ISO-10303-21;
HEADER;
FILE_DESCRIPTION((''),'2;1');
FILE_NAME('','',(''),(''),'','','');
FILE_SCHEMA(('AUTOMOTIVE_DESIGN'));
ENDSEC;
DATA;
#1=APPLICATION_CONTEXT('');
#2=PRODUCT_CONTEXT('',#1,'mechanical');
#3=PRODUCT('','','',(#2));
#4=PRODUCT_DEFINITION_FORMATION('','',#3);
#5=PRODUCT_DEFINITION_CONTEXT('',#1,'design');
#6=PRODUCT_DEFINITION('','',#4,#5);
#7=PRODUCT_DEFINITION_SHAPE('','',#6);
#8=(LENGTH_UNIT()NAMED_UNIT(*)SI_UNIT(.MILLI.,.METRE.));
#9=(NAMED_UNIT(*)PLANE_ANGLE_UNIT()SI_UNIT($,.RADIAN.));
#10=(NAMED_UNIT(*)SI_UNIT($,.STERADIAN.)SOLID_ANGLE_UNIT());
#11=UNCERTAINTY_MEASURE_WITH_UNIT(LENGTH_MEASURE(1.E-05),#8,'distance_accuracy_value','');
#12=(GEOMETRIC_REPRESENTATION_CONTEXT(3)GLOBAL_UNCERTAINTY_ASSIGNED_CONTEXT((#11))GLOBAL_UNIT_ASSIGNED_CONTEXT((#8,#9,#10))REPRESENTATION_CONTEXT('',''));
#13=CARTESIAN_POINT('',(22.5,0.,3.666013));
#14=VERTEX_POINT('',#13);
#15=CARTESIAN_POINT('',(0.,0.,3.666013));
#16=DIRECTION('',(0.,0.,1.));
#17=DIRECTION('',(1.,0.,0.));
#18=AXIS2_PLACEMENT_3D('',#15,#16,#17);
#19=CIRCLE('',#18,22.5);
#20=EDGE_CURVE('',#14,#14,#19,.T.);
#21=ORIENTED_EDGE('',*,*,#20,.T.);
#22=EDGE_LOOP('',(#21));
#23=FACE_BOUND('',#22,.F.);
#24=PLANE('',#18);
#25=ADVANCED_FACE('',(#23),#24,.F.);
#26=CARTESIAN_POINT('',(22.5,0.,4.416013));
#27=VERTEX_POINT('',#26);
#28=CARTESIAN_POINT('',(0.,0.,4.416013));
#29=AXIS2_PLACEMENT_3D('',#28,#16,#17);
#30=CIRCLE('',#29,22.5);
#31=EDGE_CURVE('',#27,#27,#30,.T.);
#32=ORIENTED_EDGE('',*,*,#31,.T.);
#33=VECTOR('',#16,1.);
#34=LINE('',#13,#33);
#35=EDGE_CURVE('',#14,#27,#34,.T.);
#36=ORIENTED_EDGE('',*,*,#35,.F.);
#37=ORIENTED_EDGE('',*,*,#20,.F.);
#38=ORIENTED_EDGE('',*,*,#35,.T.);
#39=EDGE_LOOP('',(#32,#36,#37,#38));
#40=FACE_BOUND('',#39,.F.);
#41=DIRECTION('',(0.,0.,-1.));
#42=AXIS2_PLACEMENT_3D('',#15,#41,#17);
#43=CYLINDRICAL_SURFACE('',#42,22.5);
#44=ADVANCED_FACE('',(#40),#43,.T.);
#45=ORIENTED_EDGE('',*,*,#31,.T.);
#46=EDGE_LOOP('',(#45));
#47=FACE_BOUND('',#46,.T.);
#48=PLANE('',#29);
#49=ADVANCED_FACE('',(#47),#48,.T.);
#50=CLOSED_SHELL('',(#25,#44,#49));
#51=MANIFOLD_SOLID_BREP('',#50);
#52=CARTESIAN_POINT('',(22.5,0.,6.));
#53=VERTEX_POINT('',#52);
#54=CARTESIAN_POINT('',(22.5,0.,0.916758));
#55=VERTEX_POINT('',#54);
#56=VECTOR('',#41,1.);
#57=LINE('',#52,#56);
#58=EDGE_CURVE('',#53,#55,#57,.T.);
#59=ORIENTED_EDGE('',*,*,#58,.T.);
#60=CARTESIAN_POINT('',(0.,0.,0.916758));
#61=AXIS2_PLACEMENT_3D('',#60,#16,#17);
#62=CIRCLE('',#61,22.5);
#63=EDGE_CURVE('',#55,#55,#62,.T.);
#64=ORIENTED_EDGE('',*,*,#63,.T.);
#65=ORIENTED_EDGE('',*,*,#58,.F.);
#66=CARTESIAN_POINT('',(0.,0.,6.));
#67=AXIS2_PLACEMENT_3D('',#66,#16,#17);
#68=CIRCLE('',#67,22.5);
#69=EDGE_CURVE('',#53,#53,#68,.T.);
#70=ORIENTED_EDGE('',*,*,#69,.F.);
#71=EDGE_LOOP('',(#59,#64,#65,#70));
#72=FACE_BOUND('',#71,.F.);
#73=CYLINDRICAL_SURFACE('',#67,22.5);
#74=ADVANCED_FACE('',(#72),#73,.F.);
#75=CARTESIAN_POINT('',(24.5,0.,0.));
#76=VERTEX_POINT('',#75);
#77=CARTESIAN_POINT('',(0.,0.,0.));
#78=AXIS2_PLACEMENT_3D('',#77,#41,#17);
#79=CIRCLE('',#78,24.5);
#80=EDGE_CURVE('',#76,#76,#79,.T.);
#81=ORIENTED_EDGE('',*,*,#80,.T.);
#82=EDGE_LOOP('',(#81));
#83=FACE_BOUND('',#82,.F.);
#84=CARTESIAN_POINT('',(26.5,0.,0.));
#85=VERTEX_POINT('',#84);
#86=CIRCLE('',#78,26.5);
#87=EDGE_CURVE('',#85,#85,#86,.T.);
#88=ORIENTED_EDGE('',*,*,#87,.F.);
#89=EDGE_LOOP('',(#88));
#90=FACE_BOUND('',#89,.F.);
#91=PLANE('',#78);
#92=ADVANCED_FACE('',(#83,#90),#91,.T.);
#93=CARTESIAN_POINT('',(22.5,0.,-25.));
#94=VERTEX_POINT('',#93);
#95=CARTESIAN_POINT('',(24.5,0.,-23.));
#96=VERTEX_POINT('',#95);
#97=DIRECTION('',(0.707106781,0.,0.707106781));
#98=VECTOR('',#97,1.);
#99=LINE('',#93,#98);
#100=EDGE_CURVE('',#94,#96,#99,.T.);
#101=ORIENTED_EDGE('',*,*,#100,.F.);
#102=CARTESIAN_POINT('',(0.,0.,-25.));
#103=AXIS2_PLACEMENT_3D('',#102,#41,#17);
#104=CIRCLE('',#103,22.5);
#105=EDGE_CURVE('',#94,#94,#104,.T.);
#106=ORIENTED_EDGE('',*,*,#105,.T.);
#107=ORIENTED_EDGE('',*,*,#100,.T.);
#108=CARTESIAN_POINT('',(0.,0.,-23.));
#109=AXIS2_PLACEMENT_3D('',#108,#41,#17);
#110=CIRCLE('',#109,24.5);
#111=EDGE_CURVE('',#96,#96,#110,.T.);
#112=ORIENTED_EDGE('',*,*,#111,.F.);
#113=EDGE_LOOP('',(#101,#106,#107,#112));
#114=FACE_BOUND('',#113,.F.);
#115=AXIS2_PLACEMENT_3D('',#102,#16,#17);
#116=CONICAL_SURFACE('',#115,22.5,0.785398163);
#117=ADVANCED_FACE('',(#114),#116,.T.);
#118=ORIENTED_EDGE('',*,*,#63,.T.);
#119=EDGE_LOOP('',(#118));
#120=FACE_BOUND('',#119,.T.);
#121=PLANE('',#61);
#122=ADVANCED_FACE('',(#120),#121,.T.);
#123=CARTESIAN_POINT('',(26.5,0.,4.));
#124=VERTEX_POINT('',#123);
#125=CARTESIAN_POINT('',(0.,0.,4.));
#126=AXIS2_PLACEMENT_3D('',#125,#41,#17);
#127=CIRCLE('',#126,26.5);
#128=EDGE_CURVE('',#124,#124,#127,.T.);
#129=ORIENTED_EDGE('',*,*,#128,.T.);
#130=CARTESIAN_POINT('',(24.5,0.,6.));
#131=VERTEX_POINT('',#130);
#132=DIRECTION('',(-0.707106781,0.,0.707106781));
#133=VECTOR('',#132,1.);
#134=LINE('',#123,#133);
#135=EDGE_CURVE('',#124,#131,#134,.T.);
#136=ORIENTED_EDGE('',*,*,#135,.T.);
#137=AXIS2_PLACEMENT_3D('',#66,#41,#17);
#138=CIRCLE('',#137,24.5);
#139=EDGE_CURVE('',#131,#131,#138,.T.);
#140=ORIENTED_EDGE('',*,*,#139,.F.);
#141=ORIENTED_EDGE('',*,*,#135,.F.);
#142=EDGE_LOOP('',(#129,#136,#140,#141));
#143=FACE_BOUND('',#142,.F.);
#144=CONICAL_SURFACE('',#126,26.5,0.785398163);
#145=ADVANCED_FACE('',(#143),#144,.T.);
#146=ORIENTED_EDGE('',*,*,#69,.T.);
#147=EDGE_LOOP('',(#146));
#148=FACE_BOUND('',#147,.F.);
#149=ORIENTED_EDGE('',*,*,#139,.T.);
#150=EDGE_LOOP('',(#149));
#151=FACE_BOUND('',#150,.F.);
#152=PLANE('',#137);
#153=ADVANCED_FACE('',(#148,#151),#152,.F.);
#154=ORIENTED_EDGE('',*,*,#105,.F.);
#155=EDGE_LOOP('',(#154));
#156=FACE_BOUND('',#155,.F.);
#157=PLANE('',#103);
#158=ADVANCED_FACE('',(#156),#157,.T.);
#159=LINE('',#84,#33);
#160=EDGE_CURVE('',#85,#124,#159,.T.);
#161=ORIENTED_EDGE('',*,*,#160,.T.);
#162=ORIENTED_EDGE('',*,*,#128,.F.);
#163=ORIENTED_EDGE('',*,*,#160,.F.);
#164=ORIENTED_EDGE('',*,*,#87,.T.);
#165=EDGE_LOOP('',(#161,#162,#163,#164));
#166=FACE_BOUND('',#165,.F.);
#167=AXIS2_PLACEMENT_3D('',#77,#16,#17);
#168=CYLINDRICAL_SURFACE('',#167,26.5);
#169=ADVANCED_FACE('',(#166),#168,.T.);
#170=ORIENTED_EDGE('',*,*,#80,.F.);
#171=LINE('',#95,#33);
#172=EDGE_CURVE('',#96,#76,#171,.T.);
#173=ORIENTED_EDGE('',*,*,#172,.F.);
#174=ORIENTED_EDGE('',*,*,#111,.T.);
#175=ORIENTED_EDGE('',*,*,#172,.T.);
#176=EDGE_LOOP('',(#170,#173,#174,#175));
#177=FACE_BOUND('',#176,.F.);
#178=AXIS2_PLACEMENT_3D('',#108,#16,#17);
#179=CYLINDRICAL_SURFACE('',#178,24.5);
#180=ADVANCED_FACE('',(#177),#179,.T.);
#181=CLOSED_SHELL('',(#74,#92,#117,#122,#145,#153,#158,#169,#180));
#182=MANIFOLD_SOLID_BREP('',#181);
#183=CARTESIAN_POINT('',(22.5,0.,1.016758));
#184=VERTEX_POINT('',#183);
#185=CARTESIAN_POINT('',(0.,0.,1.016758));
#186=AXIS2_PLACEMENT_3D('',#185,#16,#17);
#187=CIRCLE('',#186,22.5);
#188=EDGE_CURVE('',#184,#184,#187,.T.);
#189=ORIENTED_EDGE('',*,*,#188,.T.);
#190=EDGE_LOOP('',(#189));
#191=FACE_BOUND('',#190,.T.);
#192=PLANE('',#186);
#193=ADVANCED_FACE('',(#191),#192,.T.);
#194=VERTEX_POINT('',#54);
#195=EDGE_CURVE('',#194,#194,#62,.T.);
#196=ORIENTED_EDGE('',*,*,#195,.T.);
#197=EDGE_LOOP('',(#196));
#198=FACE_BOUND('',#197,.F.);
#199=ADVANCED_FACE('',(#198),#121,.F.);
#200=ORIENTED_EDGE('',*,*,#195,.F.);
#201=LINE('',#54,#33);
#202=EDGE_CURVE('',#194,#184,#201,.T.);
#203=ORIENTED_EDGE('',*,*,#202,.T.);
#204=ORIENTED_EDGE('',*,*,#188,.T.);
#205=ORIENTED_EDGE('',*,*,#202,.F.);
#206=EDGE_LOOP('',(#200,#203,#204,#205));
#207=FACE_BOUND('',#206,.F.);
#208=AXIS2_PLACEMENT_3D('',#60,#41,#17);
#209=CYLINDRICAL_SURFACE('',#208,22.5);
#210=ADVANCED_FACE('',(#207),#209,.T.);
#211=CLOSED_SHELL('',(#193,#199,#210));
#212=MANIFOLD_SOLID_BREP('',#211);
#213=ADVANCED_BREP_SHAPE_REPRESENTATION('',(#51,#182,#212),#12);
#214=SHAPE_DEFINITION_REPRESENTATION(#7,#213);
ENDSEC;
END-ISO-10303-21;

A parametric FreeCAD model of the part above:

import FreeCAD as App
import Part
import Sketcher

V = App.Vector

doc = App.newDocument("Part")
params = doc.addObject("Spreadsheet::Sheet", "Params")
for row, (alias, value) in enumerate([
    ("sketch1_width", "2 mm"),
    ("sketch1_height", "31 mm"),
    ("sketch1_height2", "23 mm"),
    ("sketch1_height3", "4 mm"),
    ("sketch1_width2", "22.5 mm"),
    ("revolution_angle", "360 deg"),
    ("sketch2_diameter", "45 mm"),
    ("pocket1_length", "5.083242 mm"),
    ("sketch3_diameter", "45 mm"),
    ("pad1_length", "0.1 mm"),
    ("sketch4_diameter", "45 mm"),
    ("pad2_length", "0.75 mm"),
], start=1):
    params.set(f"A{row}", alias)
    params.set(f"B{row}", "=" + value)
    params.setAlias(f"B{row}", alias)

body = doc.addObject("PartDesign::Body", "Body")

# Sketch on XZ plane
sketch1 = body.newObject("Sketcher::SketchObject", "Sketch")
sketch1.AttachmentSupport = (doc.getObject("XZ_Plane"), [""])
sketch1.MapMode = "FlatFace"
sketch1.addGeometry([
    Part.LineSegment(V(0, 6, 0), V(0, -25, 0)),  # 0
    Part.LineSegment(V(0, -25, 0), V(22.5, -25, 0)),  # 1
    Part.LineSegment(V(22.5, -25, 0), V(24.5, -23, 0)),  # 2
    Part.LineSegment(V(24.5, -23, 0), V(24.5, 0, 0)),  # 3
    Part.LineSegment(V(24.5, 0, 0), V(26.5, 0, 0)),  # 4
    Part.LineSegment(V(26.5, 0, 0), V(26.5, 4, 0)),  # 5
    Part.LineSegment(V(26.5, 4, 0), V(24.5, 6, 0)),  # 6
    Part.LineSegment(V(24.5, 6, 0), V(0, 6, 0)),  # 7
], False)
sketch1.addConstraint([
    Sketcher.Constraint("Coincident", 0, 2, 1, 1),
    Sketcher.Constraint("Coincident", 1, 2, 2, 1),
    Sketcher.Constraint("Coincident", 2, 2, 3, 1),
    Sketcher.Constraint("Coincident", 3, 2, 4, 1),
    Sketcher.Constraint("Coincident", 4, 2, 5, 1),
    Sketcher.Constraint("Coincident", 5, 2, 6, 1),
    Sketcher.Constraint("Coincident", 6, 2, 7, 1),
    Sketcher.Constraint("Coincident", 7, 2, 0, 1),
    Sketcher.Constraint("Vertical", 0),
    Sketcher.Constraint("Horizontal", 1),
    Sketcher.Constraint("Vertical", 3),
    Sketcher.Constraint("Horizontal", 4),
    Sketcher.Constraint("Vertical", 5),
    Sketcher.Constraint("Horizontal", 7),
    Sketcher.Constraint("PointOnObject", 0, 2, -2),
    Sketcher.Constraint("PointOnObject", 3, 2, -1),
    Sketcher.Constraint("Perpendicular", 2, 6),
    Sketcher.Constraint("Vertical", 3, 2, 6, 2),
    Sketcher.Constraint("Equal", 2, 6),
    Sketcher.Constraint("DistanceX", 4, 1, 4, 2, 2.0),
    Sketcher.Constraint("DistanceY", 0, 2, 0, 1, 31.0),
    Sketcher.Constraint("DistanceY", 3, 1, 3, 2, 23.0),
    Sketcher.Constraint("DistanceY", 5, 1, 5, 2, 4.0),
    Sketcher.Constraint("DistanceX", 1, 1, 1, 2, 22.5),
])
sketch1.setExpression("Constraints[19]", "Params.sketch1_width")
sketch1.setExpression("Constraints[20]", "Params.sketch1_height")
sketch1.setExpression("Constraints[21]", "Params.sketch1_height2")
sketch1.setExpression("Constraints[22]", "Params.sketch1_height3")
sketch1.setExpression("Constraints[23]", "Params.sketch1_width2")
revolution = body.newObject("PartDesign::Revolution", "Revolution")
revolution.Profile = sketch1
revolution.ReferenceAxis = (sketch1, ["V_Axis"])
revolution.setExpression("Angle", "Params.revolution_angle")

# Sketch on XY plane
sketch2 = body.newObject("Sketcher::SketchObject", "Sketch001")
sketch2.AttachmentSupport = (doc.getObject("XY_Plane"), [""])
sketch2.MapMode = "FlatFace"
sketch2.AttachmentOffset = App.Placement(V(0, 0, 6), App.Rotation())
sketch2.addGeometry(Part.Circle(V(0, 0, 0), V(0, 0, 1), 22.5), False)
sketch2.addConstraint([
    Sketcher.Constraint("Coincident", 0, 3, -1, 1),
    Sketcher.Constraint("Diameter", 0, 45.0),
])
sketch2.setExpression("Constraints[1]", "Params.sketch2_diameter")
pocket1 = body.newObject("PartDesign::Pocket", "Pocket")
pocket1.Profile = sketch2
pocket1.setExpression("Length", "Params.pocket1_length")
body2 = doc.addObject("PartDesign::Body", "Body001")

# Sketch on XY plane
sketch3 = body2.newObject("Sketcher::SketchObject", "Sketch002")
sketch3.AttachmentSupport = (doc.getObject("XY_Plane001"), [""])
sketch3.MapMode = "FlatFace"
sketch3.AttachmentOffset = App.Placement(V(0, 0, 0.916758), App.Rotation())
sketch3.addGeometry(Part.Circle(V(0, 0, 0), V(0, 0, 1), 22.5), False)
sketch3.addConstraint([
    Sketcher.Constraint("Coincident", 0, 3, -1, 1),
    Sketcher.Constraint("Diameter", 0, 45.0),
])
sketch3.setExpression("Constraints[1]", "Params.sketch3_diameter")
pad1 = body2.newObject("PartDesign::Pad", "Pad")
pad1.Profile = sketch3
pad1.setExpression("Length", "Params.pad1_length")
body3 = doc.addObject("PartDesign::Body", "Body002")

# Sketch on XY plane
sketch4 = body3.newObject("Sketcher::SketchObject", "Sketch003")
sketch4.AttachmentSupport = (doc.getObject("XY_Plane002"), [""])
sketch4.MapMode = "FlatFace"
sketch4.AttachmentOffset = App.Placement(V(0, 0, 3.666013), App.Rotation())
sketch4.addGeometry(Part.Circle(V(0, 0, 0), V(0, 0, 1), 22.5), False)
sketch4.addConstraint([
    Sketcher.Constraint("Coincident", 0, 3, -1, 1),
    Sketcher.Constraint("Diameter", 0, 45.0),
])
sketch4.setExpression("Constraints[1]", "Params.sketch4_diameter")
pad2 = body3.newObject("PartDesign::Pad", "Pad001")
pad2.Profile = sketch4
pad2.setExpression("Length", "Params.pad2_length")

doc.recompute()
